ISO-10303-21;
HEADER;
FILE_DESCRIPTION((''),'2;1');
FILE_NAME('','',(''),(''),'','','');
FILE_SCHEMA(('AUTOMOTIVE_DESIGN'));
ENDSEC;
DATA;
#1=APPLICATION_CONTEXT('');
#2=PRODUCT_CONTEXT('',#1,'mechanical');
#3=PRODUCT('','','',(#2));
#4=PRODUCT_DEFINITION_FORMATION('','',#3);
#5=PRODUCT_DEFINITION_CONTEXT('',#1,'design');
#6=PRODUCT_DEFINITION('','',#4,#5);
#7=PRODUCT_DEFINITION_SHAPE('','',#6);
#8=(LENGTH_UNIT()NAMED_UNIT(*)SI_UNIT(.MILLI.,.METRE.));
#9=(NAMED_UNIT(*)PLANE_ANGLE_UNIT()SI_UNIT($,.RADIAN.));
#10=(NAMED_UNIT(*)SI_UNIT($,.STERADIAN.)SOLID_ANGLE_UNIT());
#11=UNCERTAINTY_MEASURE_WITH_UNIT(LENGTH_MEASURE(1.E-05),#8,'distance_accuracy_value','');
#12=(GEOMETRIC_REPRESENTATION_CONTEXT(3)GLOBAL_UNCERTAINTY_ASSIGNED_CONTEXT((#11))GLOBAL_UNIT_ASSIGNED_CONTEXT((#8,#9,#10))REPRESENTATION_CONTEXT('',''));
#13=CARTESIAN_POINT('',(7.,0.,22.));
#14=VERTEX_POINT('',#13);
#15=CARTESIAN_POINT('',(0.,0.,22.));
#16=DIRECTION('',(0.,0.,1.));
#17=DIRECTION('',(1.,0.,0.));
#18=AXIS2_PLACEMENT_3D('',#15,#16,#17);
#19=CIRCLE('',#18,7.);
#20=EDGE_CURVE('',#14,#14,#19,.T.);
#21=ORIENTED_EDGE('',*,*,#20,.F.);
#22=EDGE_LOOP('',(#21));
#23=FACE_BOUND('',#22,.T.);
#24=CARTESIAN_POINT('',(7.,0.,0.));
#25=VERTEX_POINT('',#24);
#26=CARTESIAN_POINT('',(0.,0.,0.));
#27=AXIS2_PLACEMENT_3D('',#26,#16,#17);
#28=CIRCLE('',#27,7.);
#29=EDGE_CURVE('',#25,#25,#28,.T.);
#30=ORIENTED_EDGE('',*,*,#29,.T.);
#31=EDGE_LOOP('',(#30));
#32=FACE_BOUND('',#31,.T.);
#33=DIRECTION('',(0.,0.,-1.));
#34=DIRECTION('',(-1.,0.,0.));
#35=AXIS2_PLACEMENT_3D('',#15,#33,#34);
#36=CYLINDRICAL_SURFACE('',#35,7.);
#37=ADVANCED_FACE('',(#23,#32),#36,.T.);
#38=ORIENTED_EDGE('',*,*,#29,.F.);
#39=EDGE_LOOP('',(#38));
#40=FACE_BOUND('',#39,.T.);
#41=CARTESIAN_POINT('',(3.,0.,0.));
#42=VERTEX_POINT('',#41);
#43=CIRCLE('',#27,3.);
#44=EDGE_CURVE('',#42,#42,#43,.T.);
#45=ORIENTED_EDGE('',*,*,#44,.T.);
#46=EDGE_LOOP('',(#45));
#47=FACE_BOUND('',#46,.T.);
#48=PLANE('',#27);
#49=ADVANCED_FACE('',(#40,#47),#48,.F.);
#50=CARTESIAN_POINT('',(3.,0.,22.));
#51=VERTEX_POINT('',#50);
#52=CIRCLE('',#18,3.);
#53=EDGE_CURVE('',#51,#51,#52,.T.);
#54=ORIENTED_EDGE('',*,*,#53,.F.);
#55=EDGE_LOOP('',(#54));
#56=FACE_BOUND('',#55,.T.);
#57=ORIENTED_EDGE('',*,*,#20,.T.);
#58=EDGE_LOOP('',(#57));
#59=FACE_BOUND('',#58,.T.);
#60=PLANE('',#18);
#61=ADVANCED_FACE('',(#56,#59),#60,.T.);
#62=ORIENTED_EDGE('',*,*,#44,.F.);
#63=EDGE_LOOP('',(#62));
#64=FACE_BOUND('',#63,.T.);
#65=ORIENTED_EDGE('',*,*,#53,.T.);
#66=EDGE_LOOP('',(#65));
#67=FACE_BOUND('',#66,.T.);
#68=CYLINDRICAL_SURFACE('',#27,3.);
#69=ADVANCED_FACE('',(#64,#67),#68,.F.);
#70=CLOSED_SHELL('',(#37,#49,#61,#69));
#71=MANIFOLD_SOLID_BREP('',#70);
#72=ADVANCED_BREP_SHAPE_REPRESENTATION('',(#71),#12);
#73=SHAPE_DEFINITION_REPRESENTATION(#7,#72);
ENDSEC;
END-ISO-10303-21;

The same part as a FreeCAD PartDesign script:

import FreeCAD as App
import Part
import Sketcher

V = App.Vector
Q = App.Units.Quantity

doc = App.newDocument("Part")
body = doc.addObject("PartDesign::Body", "Body")

# Sketch on XY plane
sketch1 = doc.addObject("Sketcher::SketchObject", "Sketch")
body.addObject(sketch1)
sketch1.AttachmentSupport = (doc.XY_Plane, [""])
sketch1.MapMode = "FlatFace"
sketch1.addGeometry(Part.Circle(V(0, 0, 0), V(0, 0, 1), 7), False)
sketch1.addConstraint([
    Sketcher.Constraint("Coincident", 0, 3, -1, 1),
    Sketcher.Constraint("Diameter", 0, Q("14 mm")),
])
pad1 = doc.addObject("PartDesign::Pad", "Pad")
body.addObject(pad1)
pad1.Profile = sketch1
pad1.Length = 22

# Sketch on XY plane
sketch2 = doc.addObject("Sketcher::SketchObject", "Sketch001")
body.addObject(sketch2)
sketch2.AttachmentSupport = (doc.XY_Plane, [""])
sketch2.MapMode = "FlatFace"
sketch2.AttachmentOffset = App.Placement(V(0, 0, 22), App.Rotation())
sketch2.addGeometry(Part.Circle(V(0, 0, 0), V(0, 0, 1), 3), False)
sketch2.addConstraint([
    Sketcher.Constraint("Coincident", 0, 3, -1, 1),
    Sketcher.Constraint("Diameter", 0, Q("6 mm")),
])
pocket1 = doc.addObject("PartDesign::Pocket", "Pocket")
body.addObject(pocket1)
pocket1.Profile = sketch2
pocket1.Type = "ThroughAll"

doc.recompute()
